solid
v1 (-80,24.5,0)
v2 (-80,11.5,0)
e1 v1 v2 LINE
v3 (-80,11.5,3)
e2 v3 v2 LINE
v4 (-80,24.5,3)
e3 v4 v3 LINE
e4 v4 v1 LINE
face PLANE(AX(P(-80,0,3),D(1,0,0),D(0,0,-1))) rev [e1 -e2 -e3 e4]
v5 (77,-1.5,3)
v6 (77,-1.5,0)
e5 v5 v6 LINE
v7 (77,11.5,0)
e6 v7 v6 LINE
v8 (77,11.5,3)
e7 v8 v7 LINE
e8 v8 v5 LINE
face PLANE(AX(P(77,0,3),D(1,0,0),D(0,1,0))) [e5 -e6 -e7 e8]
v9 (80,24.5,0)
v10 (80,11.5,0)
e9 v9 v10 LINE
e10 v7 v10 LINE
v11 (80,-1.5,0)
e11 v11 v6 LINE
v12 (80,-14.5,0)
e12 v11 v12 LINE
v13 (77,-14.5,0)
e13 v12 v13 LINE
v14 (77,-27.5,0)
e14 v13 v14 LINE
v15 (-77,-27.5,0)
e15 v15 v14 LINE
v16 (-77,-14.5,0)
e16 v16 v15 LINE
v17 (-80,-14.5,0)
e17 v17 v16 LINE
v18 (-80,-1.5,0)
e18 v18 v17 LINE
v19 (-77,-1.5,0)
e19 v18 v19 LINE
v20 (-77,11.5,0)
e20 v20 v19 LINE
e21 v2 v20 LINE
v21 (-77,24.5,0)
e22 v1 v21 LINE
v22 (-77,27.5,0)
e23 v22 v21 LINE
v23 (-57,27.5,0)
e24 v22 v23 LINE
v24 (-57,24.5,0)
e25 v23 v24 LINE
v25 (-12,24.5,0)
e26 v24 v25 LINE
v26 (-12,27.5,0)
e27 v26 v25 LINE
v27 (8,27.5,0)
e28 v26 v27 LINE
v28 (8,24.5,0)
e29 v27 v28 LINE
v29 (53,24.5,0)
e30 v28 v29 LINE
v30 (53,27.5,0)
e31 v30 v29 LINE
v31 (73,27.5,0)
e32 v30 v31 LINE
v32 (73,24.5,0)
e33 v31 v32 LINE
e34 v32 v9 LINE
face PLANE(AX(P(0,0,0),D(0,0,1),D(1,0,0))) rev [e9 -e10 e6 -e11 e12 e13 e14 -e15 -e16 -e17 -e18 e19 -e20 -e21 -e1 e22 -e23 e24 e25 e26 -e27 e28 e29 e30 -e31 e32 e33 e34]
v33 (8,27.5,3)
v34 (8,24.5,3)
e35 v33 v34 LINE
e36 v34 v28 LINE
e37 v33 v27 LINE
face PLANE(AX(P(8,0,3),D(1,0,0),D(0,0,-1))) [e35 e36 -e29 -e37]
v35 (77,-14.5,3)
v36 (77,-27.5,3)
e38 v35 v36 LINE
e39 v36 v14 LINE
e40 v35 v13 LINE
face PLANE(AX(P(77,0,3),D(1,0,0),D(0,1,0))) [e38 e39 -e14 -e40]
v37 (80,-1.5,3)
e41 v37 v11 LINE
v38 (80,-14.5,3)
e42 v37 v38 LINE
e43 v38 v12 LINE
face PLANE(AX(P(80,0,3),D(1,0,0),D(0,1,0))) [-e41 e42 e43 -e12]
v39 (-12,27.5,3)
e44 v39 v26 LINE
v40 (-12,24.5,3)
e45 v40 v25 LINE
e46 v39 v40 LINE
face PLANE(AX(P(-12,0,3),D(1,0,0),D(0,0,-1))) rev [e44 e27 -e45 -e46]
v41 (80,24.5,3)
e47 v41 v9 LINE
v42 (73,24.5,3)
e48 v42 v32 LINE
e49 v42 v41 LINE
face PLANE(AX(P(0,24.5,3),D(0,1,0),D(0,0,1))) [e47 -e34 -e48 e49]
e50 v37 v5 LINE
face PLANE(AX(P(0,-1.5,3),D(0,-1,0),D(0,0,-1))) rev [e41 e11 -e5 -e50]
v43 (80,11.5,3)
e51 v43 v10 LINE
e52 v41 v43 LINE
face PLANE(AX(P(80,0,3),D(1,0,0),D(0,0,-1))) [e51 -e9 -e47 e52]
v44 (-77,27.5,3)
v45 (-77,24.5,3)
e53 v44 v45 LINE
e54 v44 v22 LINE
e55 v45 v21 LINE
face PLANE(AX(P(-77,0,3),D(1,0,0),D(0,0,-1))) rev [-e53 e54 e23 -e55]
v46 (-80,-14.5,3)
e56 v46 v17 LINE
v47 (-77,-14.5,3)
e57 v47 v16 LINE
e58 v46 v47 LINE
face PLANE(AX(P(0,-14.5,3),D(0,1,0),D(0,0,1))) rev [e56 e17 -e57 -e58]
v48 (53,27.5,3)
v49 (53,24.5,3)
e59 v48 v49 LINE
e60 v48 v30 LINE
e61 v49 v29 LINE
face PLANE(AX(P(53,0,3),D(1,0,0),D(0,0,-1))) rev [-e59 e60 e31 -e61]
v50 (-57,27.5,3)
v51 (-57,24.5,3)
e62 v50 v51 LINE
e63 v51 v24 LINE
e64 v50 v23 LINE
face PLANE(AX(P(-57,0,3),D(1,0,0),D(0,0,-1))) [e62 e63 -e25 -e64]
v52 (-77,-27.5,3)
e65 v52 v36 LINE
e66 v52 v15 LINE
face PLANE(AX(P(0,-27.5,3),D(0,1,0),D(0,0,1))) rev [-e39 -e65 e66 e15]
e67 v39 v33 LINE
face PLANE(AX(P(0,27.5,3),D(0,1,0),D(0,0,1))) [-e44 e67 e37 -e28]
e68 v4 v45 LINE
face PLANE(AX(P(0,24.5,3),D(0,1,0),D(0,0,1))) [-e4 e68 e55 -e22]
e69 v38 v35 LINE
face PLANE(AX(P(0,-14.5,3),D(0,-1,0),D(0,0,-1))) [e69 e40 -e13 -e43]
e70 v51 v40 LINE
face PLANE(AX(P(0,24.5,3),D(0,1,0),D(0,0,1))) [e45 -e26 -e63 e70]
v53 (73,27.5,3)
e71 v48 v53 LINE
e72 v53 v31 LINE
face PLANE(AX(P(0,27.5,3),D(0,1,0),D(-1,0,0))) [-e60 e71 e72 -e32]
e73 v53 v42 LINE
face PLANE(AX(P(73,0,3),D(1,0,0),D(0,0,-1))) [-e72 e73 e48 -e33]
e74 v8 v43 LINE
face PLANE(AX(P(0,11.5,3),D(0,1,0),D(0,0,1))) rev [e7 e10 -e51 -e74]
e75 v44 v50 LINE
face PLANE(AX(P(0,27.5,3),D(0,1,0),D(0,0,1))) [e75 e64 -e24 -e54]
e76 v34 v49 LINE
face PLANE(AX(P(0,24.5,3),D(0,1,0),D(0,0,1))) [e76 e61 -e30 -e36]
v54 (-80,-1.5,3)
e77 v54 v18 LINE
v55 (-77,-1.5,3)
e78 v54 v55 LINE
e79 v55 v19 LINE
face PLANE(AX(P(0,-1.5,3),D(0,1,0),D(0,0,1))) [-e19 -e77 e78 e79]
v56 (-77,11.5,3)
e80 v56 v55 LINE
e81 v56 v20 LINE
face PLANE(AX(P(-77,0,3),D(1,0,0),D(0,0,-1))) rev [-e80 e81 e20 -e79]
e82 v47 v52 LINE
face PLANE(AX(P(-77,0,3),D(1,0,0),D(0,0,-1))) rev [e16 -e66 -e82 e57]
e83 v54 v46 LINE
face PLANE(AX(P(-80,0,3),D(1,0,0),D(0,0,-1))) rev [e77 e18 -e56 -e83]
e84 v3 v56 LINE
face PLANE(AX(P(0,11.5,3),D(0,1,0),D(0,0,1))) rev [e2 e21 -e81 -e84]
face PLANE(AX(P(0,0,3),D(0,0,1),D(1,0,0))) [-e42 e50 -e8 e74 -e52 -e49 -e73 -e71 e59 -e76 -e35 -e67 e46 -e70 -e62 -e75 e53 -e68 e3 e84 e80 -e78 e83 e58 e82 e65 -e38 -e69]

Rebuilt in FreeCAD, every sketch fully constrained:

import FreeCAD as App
import Part
import Sketcher
from FreeCAD import Vector


def add_polygon(sketch, points):
    """Adds a closed chain of lines whose ends are joined by coincident constraints."""
    first, n = sketch.GeometryCount, len(points)
    for a, b in zip(points, points[1:] + points[:1]):
        sketch.addGeometry(Part.LineSegment(App.Vector(*a, 0), App.Vector(*b, 0)), False)
    for i in range(n):
        sketch.addConstraint(Sketcher.Constraint("Coincident", first + i, 2, first + (i + 1) % n, 1))

doc = App.newDocument("Part")
params = doc.addObject("Spreadsheet::Sheet", "Params")
for row, (alias, value) in enumerate([
    ("sketch1_width", "45 mm"),
    ("sketch1_width2", "20 mm"),
    ("sketch1_width3", "3 mm"),
    ("sketch1_width4", "154 mm"),
    ("sketch1_height", "13 mm"),
    ("pad1_length", "3 mm"),
], start=1):
    params.set(f"A{row}", alias)
    params.set(f"B{row}", "=" + value)
    params.setAlias(f"B{row}", alias)

body = doc.addObject("PartDesign::Body", "Body")

# Sketch on XY plane
sketch1 = doc.addObject("Sketcher::SketchObject", "Sketch")
body.addObject(sketch1)
sketch1.AttachmentSupport = (doc.XY_Plane, [""])
sketch1.MapMode = "FlatFace"
add_polygon(sketch1, [(-12, 24.5), (-57, 24.5), (-57, 27.5), (-77, 27.5), (-77, 24.5), (-80, 24.5), (-80, 11.5), (-77, 11.5), (-77, -1.5), (-80, -1.5), (-80, -14.5), (-77, -14.5), (-77, -27.5), (77, -27.5), (77, -14.5), (80, -14.5), (80, -1.5), (77, -1.5), (77, 11.5), (80, 11.5), (80, 24.5), (73, 24.5), (73, 27.5), (53, 27.5), (53, 24.5), (8, 24.5), (8, 27.5), (-12, 27.5)])  # lines 0-27
sketch1.addConstraint([
    Sketcher.Constraint("Horizontal", 0),
    Sketcher.Constraint("Vertical", 1),
    Sketcher.Constraint("Horizontal", 2),
    Sketcher.Constraint("Vertical", 3),
    Sketcher.Constraint("Horizontal", 4),
    Sketcher.Constraint("Vertical", 5),
    Sketcher.Constraint("Horizontal", 6),
    Sketcher.Constraint("Vertical", 7),
    Sketcher.Constraint("Horizontal", 8),
    Sketcher.Constraint("Vertical", 9),
    Sketcher.Constraint("Horizontal", 10),
    Sketcher.Constraint("Vertical", 11),
    Sketcher.Constraint("Horizontal", 12),
    Sketcher.Constraint("Vertical", 13),
    Sketcher.Constraint("Horizontal", 14),
    Sketcher.Constraint("Vertical", 15),
    Sketcher.Constraint("Horizontal", 16),
    Sketcher.Constraint("Vertical", 17),
    Sketcher.Constraint("Horizontal", 18),
    Sketcher.Constraint("Vertical", 19),
    Sketcher.Constraint("Horizontal", 20),
    Sketcher.Constraint("Vertical", 21),
    Sketcher.Constraint("Horizontal", 22),
    Sketcher.Constraint("Vertical", 23),
    Sketcher.Constraint("Horizontal", 24),
    Sketcher.Constraint("Vertical", 25),
    Sketcher.Constraint("Horizontal", 26),
    Sketcher.Constraint("Vertical", 27),
    Sketcher.Constraint("Symmetric", 2, 2, 12, 2, -1, 1),
    Sketcher.Constraint("Symmetric", 10, 2, 13, 2, -2),
    Sketcher.Constraint("Symmetric", 8, 2, 15, 2, -2),
    Sketcher.Constraint("Symmetric", 6, 2, 17, 2, -2),
    Sketcher.Constraint("Symmetric", 4, 2, 19, 2, -2),
    Sketcher.Constraint("Horizontal", 0, 2, 3, 2),
    Sketcher.Constraint("Horizontal", 2, 2, 21, 2),
    Sketcher.Constraint("Horizontal", 20, 2, 23, 2),
    Sketcher.Constraint("Horizontal", 22, 2, 25, 2),
    Sketcher.Constraint("Vertical", 3, 2, 6, 2),
    Sketcher.Constraint("Vertical", 5, 2, 8, 2),
    Sketcher.Constraint("Equal", 2, 22),
    Sketcher.Constraint("Equal", 0, 24),
    Sketcher.Constraint("Equal", 22, 26),
    Sketcher.Constraint("Equal", 18, 1),
    Sketcher.Constraint("Equal", 5, 7),
    Sketcher.Constraint("Equal", 7, 9),
    Sketcher.Constraint("Equal", 9, 11),
    Sketcher.Constraint("DistanceX", 0, 2, 0, 1, 45.0),
    Sketcher.Constraint("DistanceX", 2, 2, 2, 1, 20.0),
    Sketcher.Constraint("DistanceX", 4, 2, 4, 1, 3.0),
    Sketcher.Constraint("DistanceX", 12, 1, 12, 2, 154.0),
    Sketcher.Constraint("DistanceY", 5, 2, 5, 1, 13.0),
])
sketch1.setExpression("Constraints[74]", "Params.sketch1_width")
sketch1.setExpression("Constraints[75]", "Params.sketch1_width2")
sketch1.setExpression("Constraints[76]", "Params.sketch1_width3")
sketch1.setExpression("Constraints[77]", "Params.sketch1_width4")
sketch1.setExpression("Constraints[78]", "Params.sketch1_height")
pad1 = doc.addObject("PartDesign::Pad", "Pad")
body.addObject(pad1)
pad1.Profile = sketch1
pad1.setExpression("Length", "Params.pad1_length")

doc.recompute()
